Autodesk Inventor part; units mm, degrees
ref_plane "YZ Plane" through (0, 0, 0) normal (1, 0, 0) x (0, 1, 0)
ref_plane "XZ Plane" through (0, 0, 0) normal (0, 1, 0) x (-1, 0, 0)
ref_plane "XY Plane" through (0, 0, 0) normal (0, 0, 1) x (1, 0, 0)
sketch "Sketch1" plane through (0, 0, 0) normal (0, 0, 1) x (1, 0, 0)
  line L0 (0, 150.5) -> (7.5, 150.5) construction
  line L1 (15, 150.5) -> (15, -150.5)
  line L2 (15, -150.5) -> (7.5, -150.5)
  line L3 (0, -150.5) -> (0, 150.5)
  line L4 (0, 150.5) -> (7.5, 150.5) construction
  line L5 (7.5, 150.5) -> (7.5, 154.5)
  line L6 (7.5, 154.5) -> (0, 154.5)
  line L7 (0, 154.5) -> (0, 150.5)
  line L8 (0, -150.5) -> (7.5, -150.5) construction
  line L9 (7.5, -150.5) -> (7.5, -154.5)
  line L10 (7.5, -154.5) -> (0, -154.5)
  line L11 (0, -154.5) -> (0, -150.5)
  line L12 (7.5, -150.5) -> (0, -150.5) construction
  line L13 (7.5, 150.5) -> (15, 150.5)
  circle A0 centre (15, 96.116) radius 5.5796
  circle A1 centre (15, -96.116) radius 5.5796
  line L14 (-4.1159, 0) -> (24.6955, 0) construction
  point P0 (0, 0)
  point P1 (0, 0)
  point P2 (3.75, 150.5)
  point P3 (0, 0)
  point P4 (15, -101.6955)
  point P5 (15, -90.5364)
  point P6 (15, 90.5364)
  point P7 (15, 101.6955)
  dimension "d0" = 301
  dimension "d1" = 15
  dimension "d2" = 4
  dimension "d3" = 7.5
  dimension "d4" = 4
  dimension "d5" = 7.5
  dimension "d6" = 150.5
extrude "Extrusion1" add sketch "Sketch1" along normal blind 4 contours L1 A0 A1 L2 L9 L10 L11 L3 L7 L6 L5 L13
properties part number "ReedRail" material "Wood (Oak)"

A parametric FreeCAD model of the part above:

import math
import FreeCAD as App
import Part
import Sketcher
Q = App.Units.Quantity

doc = App.newDocument("Part")
body = doc.addObject("PartDesign::Body", "Body")

sketch1 = body.newObject("Sketcher::SketchObject", "Sketch")
sketch1.AttachmentSupport = (doc.getObject("XY_Plane"), [""])
sketch1.MapMode = "FlatFace"
sketch1.addGeometry([
    Part.LineSegment(App.Vector(15, 101.6956, 0), App.Vector(15, 150.5, 0)),
    Part.LineSegment(App.Vector(15, 150.5, 0), App.Vector(7.5, 150.5, 0)),
    Part.LineSegment(App.Vector(7.5, 150.5, 0), App.Vector(7.5, 154.5, 0)),
    Part.LineSegment(App.Vector(7.5, 154.5, 0), App.Vector(0, 154.5, 0)),
    Part.LineSegment(App.Vector(0, 154.5, 0), App.Vector(0, -154.5, 0)),
    Part.LineSegment(App.Vector(0, -154.5, 0), App.Vector(7.5, -154.5, 0)),
    Part.LineSegment(App.Vector(7.5, -154.5, 0), App.Vector(7.5, -150.5, 0)),
    Part.LineSegment(App.Vector(7.5, -150.5, 0), App.Vector(15, -150.5, 0)),
    Part.LineSegment(App.Vector(15, -150.5, 0), App.Vector(15, -101.6956, 0)),
    Part.ArcOfCircle(Part.Circle(App.Vector(15, -96.116, 0), App.Vector(0, 0, 1), 5.5796), math.radians(90), math.radians(270)),
    Part.LineSegment(App.Vector(15, -90.5364, 0), App.Vector(15, 90.5364, 0)),
    Part.ArcOfCircle(Part.Circle(App.Vector(15, 96.116, 0), App.Vector(0, 0, 1), 5.5796), math.radians(90), math.radians(270)),
], False)
sketch1.addConstraint([
    Sketcher.Constraint("Coincident", 0, 2, 1, 1),
    Sketcher.Constraint("Coincident", 1, 2, 2, 1),
    Sketcher.Constraint("Coincident", 2, 2, 3, 1),
    Sketcher.Constraint("Coincident", 3, 2, 4, 1),
    Sketcher.Constraint("Coincident", 4, 2, 5, 1),
    Sketcher.Constraint("Coincident", 5, 2, 6, 1),
    Sketcher.Constraint("Coincident", 6, 2, 7, 1),
    Sketcher.Constraint("Coincident", 7, 2, 8, 1),
    Sketcher.Constraint("Coincident", 8, 2, 9, 2),
    Sketcher.Constraint("Coincident", 9, 1, 10, 1),
    Sketcher.Constraint("Coincident", 10, 2, 11, 2),
    Sketcher.Constraint("Coincident", 11, 1, 0, 1),
    Sketcher.Constraint("Vertical", 0),
    Sketcher.Constraint("Horizontal", 1),
    Sketcher.Constraint("Vertical", 2),
    Sketcher.Constraint("Horizontal", 3),
    Sketcher.Constraint("Vertical", 4),
    Sketcher.Constraint("Horizontal", 5),
    Sketcher.Constraint("Vertical", 6),
    Sketcher.Constraint("Horizontal", 7),
    Sketcher.Constraint("Vertical", 8),
    Sketcher.Constraint("Vertical", 10),
    Sketcher.Constraint("Equal", 9, 11),
    Sketcher.Constraint("Symmetric", 3, 2, 4, 2, -1, 1),
    Sketcher.Constraint("Symmetric", 9, 3, 11, 3, -1),
    Sketcher.Constraint("Symmetric", 1, 2, 6, 2, -1),
    Sketcher.Constraint("Vertical", 11, 3, 0, 2),
    Sketcher.Constraint("Vertical", 0, 2, 7, 2),
    Sketcher.Constraint("Vertical", 8, 2, 9, 1),
    Sketcher.Constraint("Equal", 1, 3),
    Sketcher.Constraint("DistanceY", 2, 1, 2, 2, Q("4 mm")),
    Sketcher.Constraint("DistanceX", 1, 2, 1, 1, Q("7.5 mm")),
    Sketcher.Constraint("DistanceY", 6, 2, 1, 2, Q("301 mm")),
    Sketcher.Constraint("Radius", 9, Q("5.5796 mm")),
    Sketcher.Constraint("DistanceY", 0, 1, 0, 2, Q("48.8044 mm")),
])
pad1 = body.newObject("PartDesign::Pad", "Pad")
pad1.Profile = sketch1
pad1.Length = 4

doc.recompute()
